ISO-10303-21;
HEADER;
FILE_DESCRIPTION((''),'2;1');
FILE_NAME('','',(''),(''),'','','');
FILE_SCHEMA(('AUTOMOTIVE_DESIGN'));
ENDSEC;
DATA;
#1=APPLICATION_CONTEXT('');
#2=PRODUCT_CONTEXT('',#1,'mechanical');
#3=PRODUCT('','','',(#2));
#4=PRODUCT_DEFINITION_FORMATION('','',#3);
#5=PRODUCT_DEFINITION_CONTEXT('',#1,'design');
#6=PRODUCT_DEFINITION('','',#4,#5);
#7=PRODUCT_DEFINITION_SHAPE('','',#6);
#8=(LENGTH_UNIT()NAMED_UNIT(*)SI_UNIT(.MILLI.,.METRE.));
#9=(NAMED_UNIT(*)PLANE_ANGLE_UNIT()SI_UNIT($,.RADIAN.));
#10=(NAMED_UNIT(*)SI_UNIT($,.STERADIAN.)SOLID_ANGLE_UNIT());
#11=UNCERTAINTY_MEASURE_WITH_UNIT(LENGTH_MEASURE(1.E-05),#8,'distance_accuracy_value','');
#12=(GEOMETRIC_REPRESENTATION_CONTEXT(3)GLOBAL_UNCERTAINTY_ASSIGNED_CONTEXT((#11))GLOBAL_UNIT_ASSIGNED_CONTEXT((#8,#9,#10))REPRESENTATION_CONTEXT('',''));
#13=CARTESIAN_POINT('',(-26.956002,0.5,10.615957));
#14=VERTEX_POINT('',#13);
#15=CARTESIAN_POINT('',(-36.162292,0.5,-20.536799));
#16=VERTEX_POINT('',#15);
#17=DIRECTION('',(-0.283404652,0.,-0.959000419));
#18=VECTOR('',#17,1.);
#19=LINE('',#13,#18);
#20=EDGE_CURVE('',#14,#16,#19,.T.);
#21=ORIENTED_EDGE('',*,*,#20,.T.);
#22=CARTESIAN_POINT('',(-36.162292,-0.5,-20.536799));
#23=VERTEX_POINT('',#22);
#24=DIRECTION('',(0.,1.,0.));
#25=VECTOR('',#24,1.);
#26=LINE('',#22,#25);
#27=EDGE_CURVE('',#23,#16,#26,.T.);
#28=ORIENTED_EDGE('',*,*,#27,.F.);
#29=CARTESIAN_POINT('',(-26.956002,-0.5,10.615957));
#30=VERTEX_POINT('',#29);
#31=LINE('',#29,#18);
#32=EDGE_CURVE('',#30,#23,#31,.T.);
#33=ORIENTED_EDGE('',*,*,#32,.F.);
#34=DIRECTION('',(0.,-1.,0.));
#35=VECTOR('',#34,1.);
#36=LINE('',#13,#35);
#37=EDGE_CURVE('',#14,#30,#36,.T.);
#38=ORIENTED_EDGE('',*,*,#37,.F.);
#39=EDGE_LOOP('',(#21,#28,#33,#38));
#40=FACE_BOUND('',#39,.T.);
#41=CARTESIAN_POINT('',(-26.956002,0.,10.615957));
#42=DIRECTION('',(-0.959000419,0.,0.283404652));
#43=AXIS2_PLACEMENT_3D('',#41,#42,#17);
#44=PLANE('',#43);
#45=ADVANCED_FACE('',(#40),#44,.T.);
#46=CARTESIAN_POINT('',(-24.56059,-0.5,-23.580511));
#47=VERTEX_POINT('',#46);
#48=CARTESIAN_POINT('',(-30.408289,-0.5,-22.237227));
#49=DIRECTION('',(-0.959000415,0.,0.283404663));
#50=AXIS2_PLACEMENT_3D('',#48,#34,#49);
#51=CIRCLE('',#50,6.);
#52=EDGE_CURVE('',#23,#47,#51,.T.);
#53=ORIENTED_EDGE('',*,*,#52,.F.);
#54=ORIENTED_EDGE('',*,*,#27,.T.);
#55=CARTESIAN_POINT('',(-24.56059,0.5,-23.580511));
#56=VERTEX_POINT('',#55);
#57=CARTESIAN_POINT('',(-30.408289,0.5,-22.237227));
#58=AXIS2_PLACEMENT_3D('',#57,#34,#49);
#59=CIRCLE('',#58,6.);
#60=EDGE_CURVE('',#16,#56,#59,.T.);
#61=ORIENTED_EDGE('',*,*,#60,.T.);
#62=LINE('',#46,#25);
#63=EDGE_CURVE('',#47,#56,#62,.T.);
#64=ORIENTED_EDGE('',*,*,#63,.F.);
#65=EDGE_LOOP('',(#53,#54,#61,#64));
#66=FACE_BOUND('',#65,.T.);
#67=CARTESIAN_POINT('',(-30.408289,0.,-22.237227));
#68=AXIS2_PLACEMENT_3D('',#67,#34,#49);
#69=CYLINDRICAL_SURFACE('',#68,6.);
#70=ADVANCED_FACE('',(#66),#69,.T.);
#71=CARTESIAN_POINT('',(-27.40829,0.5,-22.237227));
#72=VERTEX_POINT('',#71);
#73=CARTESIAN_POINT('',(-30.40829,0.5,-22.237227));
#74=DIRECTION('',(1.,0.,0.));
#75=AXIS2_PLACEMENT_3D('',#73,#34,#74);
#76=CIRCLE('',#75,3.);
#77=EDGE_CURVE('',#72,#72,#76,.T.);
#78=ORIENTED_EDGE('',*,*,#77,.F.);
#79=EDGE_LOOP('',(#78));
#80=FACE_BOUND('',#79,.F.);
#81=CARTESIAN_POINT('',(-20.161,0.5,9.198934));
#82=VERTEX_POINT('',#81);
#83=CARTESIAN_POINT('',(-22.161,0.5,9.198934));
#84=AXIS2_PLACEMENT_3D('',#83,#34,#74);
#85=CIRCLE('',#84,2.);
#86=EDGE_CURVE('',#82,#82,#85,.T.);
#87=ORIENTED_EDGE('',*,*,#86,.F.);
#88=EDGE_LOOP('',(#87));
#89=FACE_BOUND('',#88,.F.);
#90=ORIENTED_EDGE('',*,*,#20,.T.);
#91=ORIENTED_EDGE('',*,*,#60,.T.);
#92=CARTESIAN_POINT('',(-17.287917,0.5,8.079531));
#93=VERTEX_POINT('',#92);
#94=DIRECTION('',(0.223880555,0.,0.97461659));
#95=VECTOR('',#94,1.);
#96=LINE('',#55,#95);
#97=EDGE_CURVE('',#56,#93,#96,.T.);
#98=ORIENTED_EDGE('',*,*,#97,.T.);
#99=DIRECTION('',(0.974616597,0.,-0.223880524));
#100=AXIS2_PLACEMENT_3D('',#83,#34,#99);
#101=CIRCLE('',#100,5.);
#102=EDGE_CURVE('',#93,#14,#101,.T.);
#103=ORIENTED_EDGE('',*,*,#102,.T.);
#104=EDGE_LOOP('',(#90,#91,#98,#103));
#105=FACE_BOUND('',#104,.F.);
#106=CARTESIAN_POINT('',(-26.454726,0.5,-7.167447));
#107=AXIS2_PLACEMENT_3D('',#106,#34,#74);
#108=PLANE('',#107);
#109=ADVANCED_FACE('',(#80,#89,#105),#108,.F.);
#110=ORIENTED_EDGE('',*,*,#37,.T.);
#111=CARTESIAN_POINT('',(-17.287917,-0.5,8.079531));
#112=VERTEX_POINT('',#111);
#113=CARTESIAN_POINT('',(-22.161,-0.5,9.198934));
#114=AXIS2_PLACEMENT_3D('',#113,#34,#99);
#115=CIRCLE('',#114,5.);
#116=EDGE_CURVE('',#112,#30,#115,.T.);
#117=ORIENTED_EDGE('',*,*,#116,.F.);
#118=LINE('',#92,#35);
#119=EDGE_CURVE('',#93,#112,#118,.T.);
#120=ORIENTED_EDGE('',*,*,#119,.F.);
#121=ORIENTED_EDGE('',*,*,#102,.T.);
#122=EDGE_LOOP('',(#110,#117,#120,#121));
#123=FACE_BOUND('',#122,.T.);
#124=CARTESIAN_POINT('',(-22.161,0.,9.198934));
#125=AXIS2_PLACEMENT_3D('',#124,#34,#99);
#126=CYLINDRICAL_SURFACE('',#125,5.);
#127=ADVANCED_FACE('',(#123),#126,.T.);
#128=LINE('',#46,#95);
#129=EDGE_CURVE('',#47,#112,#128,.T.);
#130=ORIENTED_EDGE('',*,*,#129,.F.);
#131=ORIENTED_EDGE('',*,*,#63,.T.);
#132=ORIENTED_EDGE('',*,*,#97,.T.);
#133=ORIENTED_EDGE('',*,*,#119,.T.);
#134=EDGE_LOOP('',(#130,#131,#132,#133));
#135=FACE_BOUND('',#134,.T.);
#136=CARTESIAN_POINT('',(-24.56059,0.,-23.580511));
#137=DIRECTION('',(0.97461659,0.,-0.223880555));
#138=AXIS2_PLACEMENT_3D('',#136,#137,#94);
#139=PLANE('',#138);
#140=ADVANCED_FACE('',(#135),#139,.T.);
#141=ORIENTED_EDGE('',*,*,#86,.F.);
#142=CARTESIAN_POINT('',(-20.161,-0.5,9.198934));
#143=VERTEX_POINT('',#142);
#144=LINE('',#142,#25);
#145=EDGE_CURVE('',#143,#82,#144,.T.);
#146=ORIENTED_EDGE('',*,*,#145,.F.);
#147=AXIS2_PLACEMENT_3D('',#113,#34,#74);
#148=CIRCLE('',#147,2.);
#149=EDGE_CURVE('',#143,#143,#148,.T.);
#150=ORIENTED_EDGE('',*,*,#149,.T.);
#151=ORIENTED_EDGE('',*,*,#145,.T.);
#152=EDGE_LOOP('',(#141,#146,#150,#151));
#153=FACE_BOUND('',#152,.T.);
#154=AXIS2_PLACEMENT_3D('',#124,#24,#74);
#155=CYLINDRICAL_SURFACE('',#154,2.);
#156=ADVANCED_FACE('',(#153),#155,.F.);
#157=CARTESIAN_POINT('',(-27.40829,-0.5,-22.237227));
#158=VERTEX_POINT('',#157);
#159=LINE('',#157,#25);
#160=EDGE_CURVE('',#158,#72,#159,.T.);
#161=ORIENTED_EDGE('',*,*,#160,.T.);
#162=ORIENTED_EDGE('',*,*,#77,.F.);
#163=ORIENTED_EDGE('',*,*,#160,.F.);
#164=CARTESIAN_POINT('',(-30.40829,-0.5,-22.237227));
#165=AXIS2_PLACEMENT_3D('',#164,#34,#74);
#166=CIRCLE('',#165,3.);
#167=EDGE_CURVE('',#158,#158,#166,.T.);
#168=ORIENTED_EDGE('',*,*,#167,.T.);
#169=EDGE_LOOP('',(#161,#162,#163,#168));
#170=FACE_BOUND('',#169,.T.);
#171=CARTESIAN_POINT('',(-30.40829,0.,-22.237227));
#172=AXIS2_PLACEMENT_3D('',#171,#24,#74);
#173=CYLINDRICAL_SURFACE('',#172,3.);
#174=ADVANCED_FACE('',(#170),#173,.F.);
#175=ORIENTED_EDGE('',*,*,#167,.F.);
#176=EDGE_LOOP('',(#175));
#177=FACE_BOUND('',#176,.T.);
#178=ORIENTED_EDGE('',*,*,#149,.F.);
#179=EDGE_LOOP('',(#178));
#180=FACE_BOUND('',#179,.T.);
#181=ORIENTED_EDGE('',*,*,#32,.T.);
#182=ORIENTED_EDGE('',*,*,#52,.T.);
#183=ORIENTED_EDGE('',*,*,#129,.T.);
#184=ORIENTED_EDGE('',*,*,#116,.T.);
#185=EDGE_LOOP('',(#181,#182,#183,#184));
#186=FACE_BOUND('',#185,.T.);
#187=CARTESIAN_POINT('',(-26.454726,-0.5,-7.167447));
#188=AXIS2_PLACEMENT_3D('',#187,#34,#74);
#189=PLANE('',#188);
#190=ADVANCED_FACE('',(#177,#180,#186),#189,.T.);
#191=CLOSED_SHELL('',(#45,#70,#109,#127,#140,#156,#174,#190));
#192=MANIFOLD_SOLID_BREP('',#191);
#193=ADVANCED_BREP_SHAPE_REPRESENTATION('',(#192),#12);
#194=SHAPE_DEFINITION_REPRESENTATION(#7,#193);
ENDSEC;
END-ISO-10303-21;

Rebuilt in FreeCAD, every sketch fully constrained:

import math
import FreeCAD as App
import Part
import Sketcher

V = App.Vector

doc = App.newDocument("Part")
body = doc.addObject("PartDesign::Body", "Body")

# Sketch on XZ plane
sketch1 = body.newObject("Sketcher::SketchObject", "Sketch")
sketch1.AttachmentSupport = (doc.getObject("XZ_Plane"), [""])
sketch1.MapMode = "FlatFace"
sketch1.addGeometry(Part.LineSegment(V(-24.6, -23.6, 0), V(-17.3, 8.1, 0)), False)
sketch1.addGeometry(Part.ArcOfCircle(Part.Circle(V(-22.2, 9.2, 0), V(0, 0, 1), 5), math.radians(-13), math.radians(164)), False)
sketch1.addGeometry(Part.LineSegment(V(-27, 10.6, 0), V(-36.2, -20.5, 0)), False)
sketch1.addGeometry(Part.ArcOfCircle(Part.Circle(V(-30.4, -22.2, 0), V(0, 0, 1), 6), math.radians(164), math.radians(347)), False)
sketch1.addGeometry(Part.Circle(V(-30.4, -22.2, 0), V(0, 0, 1), 3), False)
sketch1.addGeometry(Part.Circle(V(-22.2, 9.2, 0), V(0, 0, 1), 2), False)
sketch1.addConstraint(Sketcher.Constraint("Tangent", 0, 2, 1, 1))
sketch1.addConstraint(Sketcher.Constraint("Tangent", 1, 2, 2, 1))
sketch1.addConstraint(Sketcher.Constraint("Tangent", 2, 2, 3, 1))
sketch1.addConstraint(Sketcher.Constraint("Tangent", 3, 2, 0, 1))
sketch1.addConstraint(Sketcher.Constraint("Coincident", 4, 3, 3, 3))
sketch1.addConstraint(Sketcher.Constraint("Coincident", 5, 3, 1, 3))
sketch1.addConstraint(Sketcher.Constraint("Diameter", 4, 6.0))
sketch1.addConstraint(Sketcher.Constraint("Diameter", 5, 4.0))
sketch1.addConstraint(Sketcher.Constraint("Radius", 1, 5.0))
sketch1.addConstraint(Sketcher.Constraint("Radius", 3, 6.0))
sketch1.addConstraint(Sketcher.Constraint("DistanceX", 1, 3, -1, 1, 22.161))
sketch1.addConstraint(Sketcher.Constraint("DistanceX", 1, 2, -1, 1, 26.956002))
sketch1.addConstraint(Sketcher.Constraint("DistanceY", 2, 2, -1, 1, 20.536799))
sketch1.addConstraint(Sketcher.Constraint("Distance", 2, 32.484611))
pad1 = body.newObject("PartDesign::Pad", "Pad")
pad1.Profile = sketch1
pad1.Length = 1
pad1.Midplane = True

doc.recompute()
